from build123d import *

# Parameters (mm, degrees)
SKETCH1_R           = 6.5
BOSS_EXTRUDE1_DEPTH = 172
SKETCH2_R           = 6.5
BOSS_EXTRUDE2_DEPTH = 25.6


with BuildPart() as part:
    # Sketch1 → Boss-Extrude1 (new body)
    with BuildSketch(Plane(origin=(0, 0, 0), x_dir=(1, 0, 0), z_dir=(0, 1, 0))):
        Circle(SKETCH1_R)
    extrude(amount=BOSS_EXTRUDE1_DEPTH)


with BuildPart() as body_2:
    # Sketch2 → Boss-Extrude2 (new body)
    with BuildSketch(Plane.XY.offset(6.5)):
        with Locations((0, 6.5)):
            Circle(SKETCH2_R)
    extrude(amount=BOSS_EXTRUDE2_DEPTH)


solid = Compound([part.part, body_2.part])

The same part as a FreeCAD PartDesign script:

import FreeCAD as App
import Part
import Sketcher

doc = App.newDocument("Part")
body = doc.addObject("PartDesign::Body", "Body")

sketch1 = body.newObject("Sketcher::SketchObject", "Sketch")
sketch1.AttachmentSupport = (doc.getObject("XZ_Plane"), [""])
sketch1.MapMode = "FlatFace"
sketch1.addGeometry(Part.Circle(App.Vector(0, 0, 0), App.Vector(0, 0, 1), 6), False)
sketch1.addConstraint([
    Sketcher.Constraint("Coincident", 0, 3, -1, 1),
    Sketcher.Constraint("Diameter", 0, 13.0),
])
pad1 = body.newObject("PartDesign::Pad", "Pad")
pad1.Profile = sketch1
pad1.Length = 172
pad1.Reversed = True
body2 = doc.addObject("PartDesign::Body", "Body001")

sketch2 = body2.newObject("Sketcher::SketchObject", "Sketch001")
sketch2.AttachmentSupport = (doc.getObject("XY_Plane001"), [""])
sketch2.MapMode = "FlatFace"
sketch2.AttachmentOffset = App.Placement(App.Vector(0, 0, 6.5), App.Rotation())
sketch2.addGeometry(Part.Circle(App.Vector(0, 6, 0), App.Vector(0, 0, 1), 6), False)
sketch2.addConstraint([
    Sketcher.Constraint("PointOnObject", 0, 3, -2),
    Sketcher.Constraint("Diameter", 0, 13.0),
    Sketcher.Constraint("DistanceY", -1, 1, 0, 3, 6.5),
])
pad2 = body2.newObject("PartDesign::Pad", "Pad001")
pad2.Profile = sketch2
pad2.Length = 25.6

doc.recompute()
